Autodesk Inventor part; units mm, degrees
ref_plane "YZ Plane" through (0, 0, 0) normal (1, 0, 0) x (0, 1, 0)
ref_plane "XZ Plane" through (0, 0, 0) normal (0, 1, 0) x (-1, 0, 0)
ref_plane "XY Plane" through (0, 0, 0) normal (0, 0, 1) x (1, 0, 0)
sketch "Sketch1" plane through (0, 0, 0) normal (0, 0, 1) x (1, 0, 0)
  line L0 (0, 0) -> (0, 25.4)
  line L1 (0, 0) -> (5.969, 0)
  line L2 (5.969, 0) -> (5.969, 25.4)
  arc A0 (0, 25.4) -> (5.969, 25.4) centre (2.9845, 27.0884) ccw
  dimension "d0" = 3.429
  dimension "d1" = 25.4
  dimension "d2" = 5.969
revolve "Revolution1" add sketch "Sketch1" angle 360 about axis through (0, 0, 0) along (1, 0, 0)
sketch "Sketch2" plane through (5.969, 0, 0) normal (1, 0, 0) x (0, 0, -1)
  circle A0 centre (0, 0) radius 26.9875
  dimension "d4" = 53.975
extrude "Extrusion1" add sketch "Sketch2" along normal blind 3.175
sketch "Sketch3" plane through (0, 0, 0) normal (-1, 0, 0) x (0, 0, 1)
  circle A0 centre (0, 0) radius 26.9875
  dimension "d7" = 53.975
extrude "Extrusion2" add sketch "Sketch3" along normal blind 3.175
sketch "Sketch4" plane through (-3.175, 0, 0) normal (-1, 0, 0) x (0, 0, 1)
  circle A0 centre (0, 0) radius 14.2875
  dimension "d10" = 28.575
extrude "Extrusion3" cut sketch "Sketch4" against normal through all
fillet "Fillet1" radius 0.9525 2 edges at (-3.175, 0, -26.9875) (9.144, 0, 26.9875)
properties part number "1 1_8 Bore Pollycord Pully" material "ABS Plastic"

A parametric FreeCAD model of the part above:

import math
import FreeCAD as App
import Part
import Sketcher
Q = App.Units.Quantity


def edges_at(feature, points):
    """Names of the edges that pass closest to the given points."""
    edges = feature.Shape.Edges
    near = lambda p: min(range(len(edges)), key=lambda i: edges[i].distToShape(Part.Vertex(*p))[0])
    return sorted({f"Edge{near(p) + 1}" for p in points})

doc = App.newDocument("Part")
body = doc.addObject("PartDesign::Body", "Body")

# Sketch on XY plane
sketch1 = body.newObject("Sketcher::SketchObject", "Sketch")
sketch1.AttachmentSupport = (doc.getObject("XY_Plane"), [""])
sketch1.MapMode = "FlatFace"
sketch1.addGeometry([
    Part.LineSegment(App.Vector(0, 25.4, 0), App.Vector(0, 0, 0)),
    Part.LineSegment(App.Vector(0, 0, 0), App.Vector(6, 0, 0)),
    Part.LineSegment(App.Vector(6, 0, 0), App.Vector(6, 25.4, 0)),
    Part.ArcOfCircle(Part.Circle(App.Vector(3, 27.1, 0), App.Vector(0, 0, 1), 3.4), math.radians(-151), math.radians(-29)),
], False)
sketch1.addConstraint([
    Sketcher.Constraint("Coincident", 0, 2, 1, 1),
    Sketcher.Constraint("Coincident", 1, 2, 2, 1),
    Sketcher.Constraint("Coincident", 2, 2, 3, 2),
    Sketcher.Constraint("Coincident", 3, 1, 0, 1),
    Sketcher.Constraint("Vertical", 0),
    Sketcher.Constraint("Horizontal", 1),
    Sketcher.Constraint("Vertical", 2),
    Sketcher.Constraint("Coincident", 0, 2, -1, 1),
    Sketcher.Constraint("Horizontal", 2, 2, 3, 1),
    Sketcher.Constraint("DistanceY", 0, 2, 0, 1, Q("1 in")),
    Sketcher.Constraint("Radius", 3, Q("0.135 in")),
    Sketcher.Constraint("DistanceX", 1, 1, 1, 2, Q("0.235 in")),
])
revolution = body.newObject("PartDesign::Revolution", "Revolution")
revolution.Profile = sketch1
revolution.ReferenceAxis = (sketch1, ["H_Axis"])
revolution.Angle = 360

# Sketch on YZ plane
sketch2 = body.newObject("Sketcher::SketchObject", "Sketch001")
sketch2.AttachmentSupport = (doc.getObject("YZ_Plane"), [""])
sketch2.MapMode = "FlatFace"
sketch2.AttachmentOffset = App.Placement(App.Vector(0, 0, 0.235 * 25.4), App.Rotation())
sketch2.addGeometry(Part.Circle(App.Vector(0, 0, 0), App.Vector(0, 0, 1), 27), False)
sketch2.addConstraint([
    Sketcher.Constraint("Coincident", 0, 3, -1, 1),
    Sketcher.Constraint("Diameter", 0, Q("2.125 in")),
])
pad1 = body.newObject("PartDesign::Pad", "Pad")
pad1.Profile = sketch2
pad1.Length = Q("0.125 in")

# Sketch on YZ plane
sketch3 = body.newObject("Sketcher::SketchObject", "Sketch002")
sketch3.AttachmentSupport = (doc.getObject("YZ_Plane"), [""])
sketch3.MapMode = "FlatFace"
sketch3.addGeometry(Part.Circle(App.Vector(0, 0, 0), App.Vector(0, 0, 1), 27), False)
sketch3.addConstraint([
    Sketcher.Constraint("Coincident", 0, 3, -1, 1),
    Sketcher.Constraint("Diameter", 0, Q("2.125 in")),
])
pad2 = body.newObject("PartDesign::Pad", "Pad001")
pad2.Profile = sketch3
pad2.Length = Q("0.125 in")
pad2.Reversed = True

# Sketch on YZ plane
sketch4 = body.newObject("Sketcher::SketchObject", "Sketch003")
sketch4.AttachmentSupport = (doc.getObject("YZ_Plane"), [""])
sketch4.MapMode = "FlatFace"
sketch4.AttachmentOffset = App.Placement(App.Vector(0, 0, -0.125 * 25.4), App.Rotation())
sketch4.addGeometry(Part.Circle(App.Vector(0, 0, 0), App.Vector(0, 0, 1), 14), False)
sketch4.addConstraint([
    Sketcher.Constraint("Coincident", 0, 3, -1, 1),
    Sketcher.Constraint("Diameter", 0, Q("1.125 in")),
])
pocket1 = body.newObject("PartDesign::Pocket", "Pocket")
pocket1.Profile = sketch4
pocket1.Type = "ThroughAll"
pocket1.Reversed = True
doc.recompute()

fillet = body.newObject("PartDesign::Fillet", "Fillet")
fillet.Base = (pocket1, edges_at(pocket1, [(-3.175, 0, -26.988), (9.144, 0, 26.988)]))
fillet.Radius = Q("0.0375 in")

doc.recompute()
